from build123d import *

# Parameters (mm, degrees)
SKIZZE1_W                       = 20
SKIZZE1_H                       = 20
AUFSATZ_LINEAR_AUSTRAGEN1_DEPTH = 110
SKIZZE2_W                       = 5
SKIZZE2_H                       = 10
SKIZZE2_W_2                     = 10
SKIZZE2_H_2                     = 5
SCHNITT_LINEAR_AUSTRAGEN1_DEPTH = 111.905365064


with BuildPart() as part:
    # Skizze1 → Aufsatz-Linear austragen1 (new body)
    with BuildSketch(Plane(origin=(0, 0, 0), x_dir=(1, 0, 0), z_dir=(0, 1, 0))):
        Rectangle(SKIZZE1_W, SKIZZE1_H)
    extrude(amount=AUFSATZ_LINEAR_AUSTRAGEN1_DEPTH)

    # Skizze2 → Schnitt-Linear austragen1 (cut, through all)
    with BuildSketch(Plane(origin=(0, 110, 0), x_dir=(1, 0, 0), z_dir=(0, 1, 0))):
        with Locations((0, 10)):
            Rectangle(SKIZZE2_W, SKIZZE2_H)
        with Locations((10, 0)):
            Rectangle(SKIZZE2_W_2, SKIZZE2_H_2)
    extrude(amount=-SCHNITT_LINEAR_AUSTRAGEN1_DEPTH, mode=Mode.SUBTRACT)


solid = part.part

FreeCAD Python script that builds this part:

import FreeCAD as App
import Part
import Sketcher
from FreeCAD import Vector


def add_polygon(sketch, points):
    """Adds a closed chain of lines whose ends are joined by coincident constraints."""
    first, n = sketch.GeometryCount, len(points)
    for a, b in zip(points, points[1:] + points[:1]):
        sketch.addGeometry(Part.LineSegment(App.Vector(*a, 0), App.Vector(*b, 0)), False)
    for i in range(n):
        sketch.addConstraint(Sketcher.Constraint("Coincident", first + i, 2, first + (i + 1) % n, 1))

doc = App.newDocument("Part")
body = doc.addObject("PartDesign::Body", "Body")

# Sketch on XZ plane
sketch1 = body.newObject("Sketcher::SketchObject", "Sketch")
sketch1.AttachmentSupport = (doc.getObject("XZ_Plane"), [""])
sketch1.MapMode = "FlatFace"
add_polygon(sketch1, [(-10, -10), (-10, 10), (10, 10), (10, -10)])  # lines 0-3
sketch1.addConstraint([
    Sketcher.Constraint("Vertical", 0),
    Sketcher.Constraint("Horizontal", 1),
    Sketcher.Constraint("Vertical", 2),
    Sketcher.Constraint("Horizontal", 3),
    Sketcher.Constraint("Symmetric", 0, 2, 2, 2, -1, 1),
    Sketcher.Constraint("Equal", 3, 0),
    Sketcher.Constraint("DistanceX", 1, 1, 1, 2, 20.0),
])
pad1 = body.newObject("PartDesign::Pad", "Pad")
pad1.Profile = sketch1
pad1.Length = 110
pad1.Reversed = True

# Sketch on XZ plane
sketch2 = body.newObject("Sketcher::SketchObject", "Sketch001")
sketch2.AttachmentSupport = (doc.getObject("XZ_Plane"), [""])
sketch2.MapMode = "FlatFace"
sketch2.AttachmentOffset = App.Placement(Vector(0, 0, -110), App.Rotation())
add_polygon(sketch2, [(-2, -15), (-2, -5), (2, -5), (2, -15)])  # lines 0-3
add_polygon(sketch2, [(5, -2), (5, 2), (15, 2), (15, -2)])  # lines 4-7
sketch2.addConstraint([
    Sketcher.Constraint("Vertical", 0),
    Sketcher.Constraint("Horizontal", 1),
    Sketcher.Constraint("Vertical", 2),
    Sketcher.Constraint("Horizontal", 3),
    Sketcher.Constraint("Vertical", 4),
    Sketcher.Constraint("Horizontal", 5),
    Sketcher.Constraint("Vertical", 6),
    Sketcher.Constraint("Horizontal", 7),
    Sketcher.Constraint("Equal", 7, 0),
    Sketcher.Constraint("Equal", 3, 4),
    Sketcher.Constraint("DistanceX", 1, 1, 1, 2, 5.0),
    Sketcher.Constraint("DistanceX", 5, 1, 5, 2, 10.0),
    Sketcher.Constraint("DistanceY", 0, 2, -1, 1, 5.0),
    Sketcher.Constraint("DistanceX", -1, 1, 4, 2, 5.0),
    Sketcher.Constraint("DistanceX", 0, 2, -1, 1, 2.5),
    Sketcher.Constraint("DistanceY", -1, 1, 4, 2, 2.5),
])
pocket1 = body.newObject("PartDesign::Pocket", "Pocket")
pocket1.Profile = sketch2
pocket1.Type = "ThroughAll"
pocket1.Reversed = True

doc.recompute()
